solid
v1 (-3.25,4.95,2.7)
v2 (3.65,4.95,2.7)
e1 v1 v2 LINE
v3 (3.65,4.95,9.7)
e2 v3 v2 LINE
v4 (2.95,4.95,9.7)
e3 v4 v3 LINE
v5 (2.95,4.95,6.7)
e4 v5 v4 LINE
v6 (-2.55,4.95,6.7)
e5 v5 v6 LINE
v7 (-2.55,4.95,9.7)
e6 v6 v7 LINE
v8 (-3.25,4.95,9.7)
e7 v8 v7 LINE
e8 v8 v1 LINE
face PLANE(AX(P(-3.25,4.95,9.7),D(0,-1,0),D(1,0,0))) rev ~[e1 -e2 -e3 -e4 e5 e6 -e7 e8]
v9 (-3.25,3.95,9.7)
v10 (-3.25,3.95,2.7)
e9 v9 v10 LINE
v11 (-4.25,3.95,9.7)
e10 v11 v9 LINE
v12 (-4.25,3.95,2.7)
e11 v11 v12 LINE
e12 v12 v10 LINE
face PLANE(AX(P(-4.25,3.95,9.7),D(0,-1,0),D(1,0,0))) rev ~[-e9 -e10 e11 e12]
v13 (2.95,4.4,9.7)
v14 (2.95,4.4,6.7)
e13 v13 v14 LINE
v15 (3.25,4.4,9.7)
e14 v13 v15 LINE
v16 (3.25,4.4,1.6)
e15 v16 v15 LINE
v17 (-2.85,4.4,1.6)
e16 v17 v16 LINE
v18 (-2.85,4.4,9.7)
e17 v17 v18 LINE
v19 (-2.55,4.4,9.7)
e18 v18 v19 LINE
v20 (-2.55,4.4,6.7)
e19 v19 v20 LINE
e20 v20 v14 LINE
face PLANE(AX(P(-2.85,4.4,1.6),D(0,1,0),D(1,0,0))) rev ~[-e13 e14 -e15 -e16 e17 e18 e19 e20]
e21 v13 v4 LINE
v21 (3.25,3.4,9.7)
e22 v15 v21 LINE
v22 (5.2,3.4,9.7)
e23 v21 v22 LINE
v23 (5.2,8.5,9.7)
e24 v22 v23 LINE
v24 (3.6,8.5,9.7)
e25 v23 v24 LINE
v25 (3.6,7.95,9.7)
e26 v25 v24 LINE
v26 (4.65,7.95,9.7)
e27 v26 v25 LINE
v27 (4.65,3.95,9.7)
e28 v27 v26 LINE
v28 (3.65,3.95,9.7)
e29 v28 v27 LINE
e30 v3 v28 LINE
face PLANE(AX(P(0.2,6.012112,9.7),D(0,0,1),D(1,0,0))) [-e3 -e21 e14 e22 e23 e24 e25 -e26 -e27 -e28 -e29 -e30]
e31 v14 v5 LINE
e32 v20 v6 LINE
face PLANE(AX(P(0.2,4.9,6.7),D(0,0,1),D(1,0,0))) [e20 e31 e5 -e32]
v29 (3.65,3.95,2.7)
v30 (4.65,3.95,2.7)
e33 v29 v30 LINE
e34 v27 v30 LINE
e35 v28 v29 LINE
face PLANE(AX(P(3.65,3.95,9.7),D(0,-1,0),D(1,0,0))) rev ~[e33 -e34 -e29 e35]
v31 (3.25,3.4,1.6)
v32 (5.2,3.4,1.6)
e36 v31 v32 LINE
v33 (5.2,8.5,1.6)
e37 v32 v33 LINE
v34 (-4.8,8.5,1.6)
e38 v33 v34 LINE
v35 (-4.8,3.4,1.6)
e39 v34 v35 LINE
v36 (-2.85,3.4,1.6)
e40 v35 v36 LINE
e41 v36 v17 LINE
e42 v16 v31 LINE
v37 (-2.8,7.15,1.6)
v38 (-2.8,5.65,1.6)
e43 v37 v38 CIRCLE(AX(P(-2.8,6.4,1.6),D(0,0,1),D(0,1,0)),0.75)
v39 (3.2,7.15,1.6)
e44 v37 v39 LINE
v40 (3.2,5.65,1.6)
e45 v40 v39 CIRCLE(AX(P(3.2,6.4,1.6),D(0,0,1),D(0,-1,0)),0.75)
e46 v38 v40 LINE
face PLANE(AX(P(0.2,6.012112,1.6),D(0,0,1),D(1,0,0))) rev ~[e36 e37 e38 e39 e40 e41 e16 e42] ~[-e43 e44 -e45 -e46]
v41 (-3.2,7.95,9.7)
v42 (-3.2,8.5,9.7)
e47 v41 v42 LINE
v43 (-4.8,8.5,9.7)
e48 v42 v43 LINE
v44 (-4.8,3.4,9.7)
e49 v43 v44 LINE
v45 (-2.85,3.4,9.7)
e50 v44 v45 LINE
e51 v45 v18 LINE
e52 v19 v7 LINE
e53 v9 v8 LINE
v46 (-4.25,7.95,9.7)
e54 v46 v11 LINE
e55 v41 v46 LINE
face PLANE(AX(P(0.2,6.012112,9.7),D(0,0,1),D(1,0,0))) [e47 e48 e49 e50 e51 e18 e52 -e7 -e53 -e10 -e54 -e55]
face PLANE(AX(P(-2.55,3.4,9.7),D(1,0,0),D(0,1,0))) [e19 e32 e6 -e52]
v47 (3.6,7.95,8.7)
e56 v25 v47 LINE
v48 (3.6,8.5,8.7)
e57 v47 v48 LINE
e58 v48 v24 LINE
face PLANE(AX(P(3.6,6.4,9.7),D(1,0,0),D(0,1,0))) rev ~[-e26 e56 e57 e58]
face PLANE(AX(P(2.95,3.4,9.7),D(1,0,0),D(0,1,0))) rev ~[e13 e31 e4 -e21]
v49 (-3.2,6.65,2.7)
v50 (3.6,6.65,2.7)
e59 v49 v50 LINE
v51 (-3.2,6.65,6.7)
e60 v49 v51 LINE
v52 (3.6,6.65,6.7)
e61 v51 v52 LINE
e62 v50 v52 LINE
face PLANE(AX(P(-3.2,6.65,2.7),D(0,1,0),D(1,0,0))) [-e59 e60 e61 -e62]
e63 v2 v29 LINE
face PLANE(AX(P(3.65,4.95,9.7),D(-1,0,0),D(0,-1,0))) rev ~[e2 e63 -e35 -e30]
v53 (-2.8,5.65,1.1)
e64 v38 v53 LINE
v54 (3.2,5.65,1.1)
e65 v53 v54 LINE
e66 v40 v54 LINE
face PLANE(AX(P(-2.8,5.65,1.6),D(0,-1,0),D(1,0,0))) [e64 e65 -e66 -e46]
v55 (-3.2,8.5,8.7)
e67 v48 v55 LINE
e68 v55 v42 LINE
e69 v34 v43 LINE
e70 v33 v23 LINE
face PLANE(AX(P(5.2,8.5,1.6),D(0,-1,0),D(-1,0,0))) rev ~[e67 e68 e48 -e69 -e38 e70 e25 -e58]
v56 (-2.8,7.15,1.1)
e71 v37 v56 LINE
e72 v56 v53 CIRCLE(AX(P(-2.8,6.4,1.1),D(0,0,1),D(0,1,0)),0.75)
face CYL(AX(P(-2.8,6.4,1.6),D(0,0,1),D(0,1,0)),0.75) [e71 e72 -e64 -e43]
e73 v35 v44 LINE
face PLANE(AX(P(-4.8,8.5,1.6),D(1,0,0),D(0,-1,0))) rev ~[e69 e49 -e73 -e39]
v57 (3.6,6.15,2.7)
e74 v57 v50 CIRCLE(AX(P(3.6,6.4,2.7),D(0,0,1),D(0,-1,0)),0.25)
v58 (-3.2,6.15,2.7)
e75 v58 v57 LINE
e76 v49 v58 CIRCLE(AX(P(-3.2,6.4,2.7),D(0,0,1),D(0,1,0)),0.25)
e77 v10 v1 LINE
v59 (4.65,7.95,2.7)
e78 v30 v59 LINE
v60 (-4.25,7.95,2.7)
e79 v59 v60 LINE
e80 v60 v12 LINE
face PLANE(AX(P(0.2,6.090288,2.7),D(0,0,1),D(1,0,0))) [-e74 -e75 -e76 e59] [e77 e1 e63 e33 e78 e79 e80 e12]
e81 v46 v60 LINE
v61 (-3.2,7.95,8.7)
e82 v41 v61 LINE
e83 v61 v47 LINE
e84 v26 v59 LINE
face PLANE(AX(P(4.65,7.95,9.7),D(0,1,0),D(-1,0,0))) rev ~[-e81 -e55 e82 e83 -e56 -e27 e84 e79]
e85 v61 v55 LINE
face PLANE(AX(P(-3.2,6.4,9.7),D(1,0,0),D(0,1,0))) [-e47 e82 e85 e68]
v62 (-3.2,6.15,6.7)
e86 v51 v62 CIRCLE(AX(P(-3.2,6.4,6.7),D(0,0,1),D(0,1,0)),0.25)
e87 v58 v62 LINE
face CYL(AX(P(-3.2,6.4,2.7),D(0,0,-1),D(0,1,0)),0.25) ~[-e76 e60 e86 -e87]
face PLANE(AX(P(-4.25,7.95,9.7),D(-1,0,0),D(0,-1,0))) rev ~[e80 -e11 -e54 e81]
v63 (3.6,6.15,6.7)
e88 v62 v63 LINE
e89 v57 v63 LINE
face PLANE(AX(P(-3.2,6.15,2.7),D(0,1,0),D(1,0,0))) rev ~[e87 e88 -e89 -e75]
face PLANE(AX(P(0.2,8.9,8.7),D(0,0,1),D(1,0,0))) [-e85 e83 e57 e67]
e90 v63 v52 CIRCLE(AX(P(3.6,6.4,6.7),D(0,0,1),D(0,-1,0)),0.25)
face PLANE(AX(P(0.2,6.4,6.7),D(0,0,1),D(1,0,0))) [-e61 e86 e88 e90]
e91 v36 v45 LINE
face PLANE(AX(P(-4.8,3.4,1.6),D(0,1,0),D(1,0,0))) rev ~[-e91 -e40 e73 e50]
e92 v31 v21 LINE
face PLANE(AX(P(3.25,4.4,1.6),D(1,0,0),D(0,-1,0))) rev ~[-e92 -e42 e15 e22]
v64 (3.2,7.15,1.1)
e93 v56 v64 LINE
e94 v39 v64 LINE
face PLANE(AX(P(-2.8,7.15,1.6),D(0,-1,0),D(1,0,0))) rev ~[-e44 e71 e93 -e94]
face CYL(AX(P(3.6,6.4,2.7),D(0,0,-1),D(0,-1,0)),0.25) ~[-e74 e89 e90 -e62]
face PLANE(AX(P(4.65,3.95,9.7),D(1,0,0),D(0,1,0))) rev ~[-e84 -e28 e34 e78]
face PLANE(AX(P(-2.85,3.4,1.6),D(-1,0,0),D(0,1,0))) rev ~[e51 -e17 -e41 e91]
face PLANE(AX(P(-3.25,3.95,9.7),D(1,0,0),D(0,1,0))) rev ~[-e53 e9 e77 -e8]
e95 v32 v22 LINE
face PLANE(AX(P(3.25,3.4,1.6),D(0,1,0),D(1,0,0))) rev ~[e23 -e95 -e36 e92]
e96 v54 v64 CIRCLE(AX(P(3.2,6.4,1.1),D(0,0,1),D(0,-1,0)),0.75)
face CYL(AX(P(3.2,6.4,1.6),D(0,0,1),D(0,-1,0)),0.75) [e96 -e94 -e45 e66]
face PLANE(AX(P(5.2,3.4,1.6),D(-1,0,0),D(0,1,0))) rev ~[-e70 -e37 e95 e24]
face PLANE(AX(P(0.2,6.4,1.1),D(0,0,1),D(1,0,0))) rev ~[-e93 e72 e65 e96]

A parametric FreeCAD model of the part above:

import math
import FreeCAD as App
import Part
import Sketcher

V = App.Vector
Q = App.Units.Quantity

doc = App.newDocument("Part")
body = doc.addObject("PartDesign::Body", "Body")

# Sketch on XY plane
sketch1 = body.newObject("Sketcher::SketchObject", "Sketch")
sketch1.AttachmentSupport = (doc.getObject("XY_Plane"), [""])
sketch1.MapMode = "FlatFace"
sketch1.addGeometry([
    Part.LineSegment(V(-5, 0, 0), V(-3.05, 0, 0)),  # 0
    Part.LineSegment(V(-3.05, 0, 0), V(-3.05, 1, 0)),  # 1
    Part.LineSegment(V(-3.05, 1, 0), V(3.05, 1, 0)),  # 2
    Part.LineSegment(V(3.05, 1, 0), V(3.05, 0, 0)),  # 3
    Part.LineSegment(V(3.05, 0, 0), V(5, 0, 0)),  # 4
    Part.LineSegment(V(5, 0, 0), V(5, 5.1, 0)),  # 5
    Part.LineSegment(V(5, 5.1, 0), V(-5, 5.1, 0)),  # 6
    Part.LineSegment(V(-5, 5.1, 0), V(-5, 0, 0)),  # 7
], False)
sketch1.addConstraint([
    Sketcher.Constraint("Coincident", 0, 2, 1, 1),
    Sketcher.Constraint("Coincident", 1, 2, 2, 1),
    Sketcher.Constraint("Coincident", 2, 2, 3, 1),
    Sketcher.Constraint("Coincident", 3, 2, 4, 1),
    Sketcher.Constraint("Coincident", 4, 2, 5, 1),
    Sketcher.Constraint("Coincident", 5, 2, 6, 1),
    Sketcher.Constraint("Coincident", 6, 2, 7, 1),
    Sketcher.Constraint("Coincident", 7, 2, 0, 1),
    Sketcher.Constraint("Horizontal", 0),
    Sketcher.Constraint("Vertical", 1),
    Sketcher.Constraint("Horizontal", 2),
    Sketcher.Constraint("Vertical", 3),
    Sketcher.Constraint("Horizontal", 4),
    Sketcher.Constraint("Vertical", 5),
    Sketcher.Constraint("Horizontal", 6),
    Sketcher.Constraint("Vertical", 7),
    Sketcher.Constraint("Symmetric", 0, 2, 3, 2, -1, 1),
    Sketcher.Constraint("Symmetric", 4, 2, 7, 2, -2),
    Sketcher.Constraint("DistanceX", 6, 2, 6, 1, Q("10 mm")),
    Sketcher.Constraint("DistanceY", 1, 1, 1, 2, Q("1 mm")),
    Sketcher.Constraint("DistanceX", 2, 1, 2, 2, Q("6.1 mm")),
    Sketcher.Constraint("DistanceY", 5, 1, 5, 2, Q("5.1 mm")),
])
pad1 = body.newObject("PartDesign::Pad", "Pad")
pad1.Profile = sketch1
pad1.Length = 8.1

# Sketch on XY plane
sketch2 = body.newObject("Sketcher::SketchObject", "Sketch001")
sketch2.AttachmentSupport = (doc.getObject("XY_Plane"), [""])
sketch2.MapMode = "FlatFace"
sketch2.AttachmentOffset = App.Placement(V(0, 0, 8.1), App.Rotation())
sketch2.addGeometry([
    Part.LineSegment(V(-4.45, 0.55, 0), V(-3.45, 0.55, 0)),  # 0
    Part.LineSegment(V(-3.45, 0.55, 0), V(-3.45, 1.55, 0)),  # 1
    Part.LineSegment(V(-3.45, 1.55, 0), V(3.45, 1.55, 0)),  # 2
    Part.LineSegment(V(3.45, 1.55, 0), V(3.45, 0.55, 0)),  # 3
    Part.LineSegment(V(3.45, 0.55, 0), V(4.45, 0.55, 0)),  # 4
    Part.LineSegment(V(4.45, 0.55, 0), V(4.45, 4.55, 0)),  # 5
    Part.LineSegment(V(4.45, 4.55, 0), V(-4.45, 4.55, 0)),  # 6
    Part.LineSegment(V(-4.45, 4.55, 0), V(-4.45, 0.55, 0)),  # 7
], False)
sketch2.addConstraint([
    Sketcher.Constraint("Coincident", 0, 2, 1, 1),
    Sketcher.Constraint("Coincident", 1, 2, 2, 1),
    Sketcher.Constraint("Coincident", 2, 2, 3, 1),
    Sketcher.Constraint("Coincident", 3, 2, 4, 1),
    Sketcher.Constraint("Coincident", 4, 2, 5, 1),
    Sketcher.Constraint("Coincident", 5, 2, 6, 1),
    Sketcher.Constraint("Coincident", 6, 2, 7, 1),
    Sketcher.Constraint("Coincident", 7, 2, 0, 1),
    Sketcher.Constraint("Horizontal", 0),
    Sketcher.Constraint("Vertical", 1),
    Sketcher.Constraint("Horizontal", 2),
    Sketcher.Constraint("Vertical", 3),
    Sketcher.Constraint("Horizontal", 4),
    Sketcher.Constraint("Vertical", 5),
    Sketcher.Constraint("Horizontal", 6),
    Sketcher.Constraint("Vertical", 7),
    Sketcher.Constraint("Symmetric", 0, 2, 3, 2, -2),
    Sketcher.Constraint("Equal", 0, 4),
    Sketcher.Constraint("Equal", 4, 1),
    Sketcher.Constraint("DistanceX", 0, 1, 0, 2, Q("1 mm")),
    Sketcher.Constraint("DistanceY", 5, 1, 5, 2, Q("4 mm")),
    Sketcher.Constraint("DistanceX", 2, 1, 2, 2, Q("6.9 mm")),
    Sketcher.Constraint("DistanceY", -1, 1, 0, 2, Q("0.55 mm")),
])
pocket1 = body.newObject("PartDesign::Pocket", "Pocket")
pocket1.Profile = sketch2
pocket1.Length = 7

# Sketch on XY plane
sketch3 = body.newObject("Sketcher::SketchObject", "Sketch002")
sketch3.AttachmentSupport = (doc.getObject("XY_Plane"), [""])
sketch3.MapMode = "FlatFace"
sketch3.AttachmentOffset = App.Placement(V(0, 0, 8.1), App.Rotation())
sketch3.addGeometry([
    Part.LineSegment(V(-3.4, 8, 0), V(-3.4, 3, 0)),
    Part.LineSegment(V(-3.4, 3, 0), V(3.4, 3, 0)),
    Part.LineSegment(V(3.4, 3, 0), V(3.4, 8, 0)),
    Part.LineSegment(V(3.4, 8, 0), V(-3.4, 8, 0)),
], False)
sketch3.addConstraint([
    Sketcher.Constraint("Coincident", 0, 2, 1, 1),
    Sketcher.Constraint("Coincident", 1, 2, 2, 1),
    Sketcher.Constraint("Coincident", 2, 2, 3, 1),
    Sketcher.Constraint("Coincident", 3, 2, 0, 1),
    Sketcher.Constraint("Vertical", 0),
    Sketcher.Constraint("Horizontal", 1),
    Sketcher.Constraint("Vertical", 2),
    Sketcher.Constraint("Horizontal", 3),
    Sketcher.Constraint("DistanceY", 0, 2, 0, 1, Q("5 mm")),
    Sketcher.Constraint("DistanceX", 1, 1, 1, 2, Q("6.8 mm")),
    Sketcher.Constraint("DistanceY", -1, 1, 0, 2, Q("3 mm")),
    Sketcher.Constraint("DistanceX", 0, 2, -1, 1, Q("3.4 mm")),
])
pocket2 = body.newObject("PartDesign::Pocket", "Pocket001")
pocket2.Profile = sketch3
pocket2.Length = 1

# Sketch on XY plane
sketch4 = body.newObject("Sketcher::SketchObject", "Sketch003")
sketch4.AttachmentSupport = (doc.getObject("XY_Plane"), [""])
sketch4.MapMode = "FlatFace"
sketch4.AttachmentOffset = App.Placement(V(0, 0, 8.1), App.Rotation())
sketch4.addGeometry([
    Part.LineSegment(V(-2.75, 3, 0), V(-2.75, 0, 0)),
    Part.LineSegment(V(-2.75, 0, 0), V(2.75, 0, 0)),
    Part.LineSegment(V(2.75, 0, 0), V(2.75, 3, 0)),
    Part.LineSegment(V(2.75, 3, 0), V(-2.75, 3, 0)),
], False)
sketch4.addConstraint([
    Sketcher.Constraint("Coincident", 0, 2, 1, 1),
    Sketcher.Constraint("Coincident", 1, 2, 2, 1),
    Sketcher.Constraint("Coincident", 2, 2, 3, 1),
    Sketcher.Constraint("Coincident", 3, 2, 0, 1),
    Sketcher.Constraint("Vertical", 0),
    Sketcher.Constraint("Horizontal", 1),
    Sketcher.Constraint("Vertical", 2),
    Sketcher.Constraint("Horizontal", 3),
    Sketcher.Constraint("Symmetric", 0, 2, 1, 2, -1, 1),
    Sketcher.Constraint("DistanceY", 0, 2, 0, 1, Q("3 mm")),
    Sketcher.Constraint("DistanceX", 1, 1, 1, 2, Q("5.5 mm")),
])
pocket3 = body.newObject("PartDesign::Pocket", "Pocket002")
pocket3.Profile = sketch4
pocket3.Length = 3

# Sketch on XY plane
sketch5 = body.newObject("Sketcher::SketchObject", "Sketch004")
sketch5.AttachmentSupport = (doc.getObject("XY_Plane"), [""])
sketch5.MapMode = "FlatFace"
sketch5.AttachmentOffset = App.Placement(V(0, 0, 1.1), App.Rotation())
sketch5.addGeometry([
    Part.ArcOfCircle(Part.Circle(V(-3.4, 3, 0), V(0, 0, 1), 0.25), math.radians(90), math.radians(270)),
    Part.LineSegment(V(-3.4, 2.75, 0), V(3.4, 2.75, 0)),
    Part.ArcOfCircle(Part.Circle(V(3.4, 3, 0), V(0, 0, 1), 0.25), math.radians(-90), math.radians(90)),
    Part.LineSegment(V(3.4, 3.25, 0), V(-3.4, 3.25, 0)),
], False)
sketch5.addConstraint([
    Sketcher.Constraint("Tangent", 0, 2, 1, 1),
    Sketcher.Constraint("Tangent", 1, 2, 2, 1),
    Sketcher.Constraint("Tangent", 2, 2, 3, 1),
    Sketcher.Constraint("Tangent", 3, 2, 0, 1),
    Sketcher.Constraint("Horizontal", 1),
    Sketcher.Constraint("Horizontal", 3),
    Sketcher.Constraint("Radius", 0, Q("0.25 mm")),
    Sketcher.Constraint("DistanceX", 1, 1, 1, 2, Q("6.8 mm")),
    Sketcher.Constraint("DistanceY", -1, 1, 0, 3, Q("3 mm")),
    Sketcher.Constraint("DistanceX", 0, 3, -1, 1, Q("3.4 mm")),
])
pad2 = body.newObject("PartDesign::Pad", "Pad001")
pad2.Profile = sketch5
pad2.Length = 4

# Sketch on XY plane
sketch6 = body.newObject("Sketcher::SketchObject", "Sketch005")
sketch6.AttachmentSupport = (doc.getObject("XY_Plane"), [""])
sketch6.MapMode = "FlatFace"
sketch6.addGeometry([
    Part.ArcOfCircle(Part.Circle(V(-3, 3, 0), V(0, 0, 1), 0.75), math.radians(90), math.radians(270)),
    Part.LineSegment(V(-3, 2.25, 0), V(3, 2.25, 0)),
    Part.ArcOfCircle(Part.Circle(V(3, 3, 0), V(0, 0, 1), 0.75), math.radians(-90), math.radians(90)),
    Part.LineSegment(V(3, 3.75, 0), V(-3, 3.75, 0)),
], False)
sketch6.addConstraint([
    Sketcher.Constraint("Tangent", 0, 2, 1, 1),
    Sketcher.Constraint("Tangent", 1, 2, 2, 1),
    Sketcher.Constraint("Tangent", 2, 2, 3, 1),
    Sketcher.Constraint("Tangent", 3, 2, 0, 1),
    Sketcher.Constraint("Horizontal", 1),
    Sketcher.Constraint("Horizontal", 3),
    Sketcher.Constraint("DistanceX", 1, 1, 1, 2, Q("6 mm")),
    Sketcher.Constraint("Radius", 0, Q("0.75 mm")),
    Sketcher.Constraint("DistanceX", 0, 3, -1, 1, Q("3 mm")),
    Sketcher.Constraint("DistanceY", -1, 1, 0, 3, Q("3 mm")),
])
pad3 = body.newObject("PartDesign::Pad", "Pad002")
pad3.Profile = sketch6
pad3.Length = 0.5
pad3.Reversed = True
body2 = doc.addObject("PartDesign::Body", "Body001")
doc.recompute()

body.Placement = App.Placement(V(0.2, 3.4, 1.6), App.Rotation(V(0, 0, 1), 0))
boolean = body2.newObject("PartDesign::Boolean", "Boolean")
boolean.Type = "Fuse"
boolean.addObjects([body])

doc.recompute()
